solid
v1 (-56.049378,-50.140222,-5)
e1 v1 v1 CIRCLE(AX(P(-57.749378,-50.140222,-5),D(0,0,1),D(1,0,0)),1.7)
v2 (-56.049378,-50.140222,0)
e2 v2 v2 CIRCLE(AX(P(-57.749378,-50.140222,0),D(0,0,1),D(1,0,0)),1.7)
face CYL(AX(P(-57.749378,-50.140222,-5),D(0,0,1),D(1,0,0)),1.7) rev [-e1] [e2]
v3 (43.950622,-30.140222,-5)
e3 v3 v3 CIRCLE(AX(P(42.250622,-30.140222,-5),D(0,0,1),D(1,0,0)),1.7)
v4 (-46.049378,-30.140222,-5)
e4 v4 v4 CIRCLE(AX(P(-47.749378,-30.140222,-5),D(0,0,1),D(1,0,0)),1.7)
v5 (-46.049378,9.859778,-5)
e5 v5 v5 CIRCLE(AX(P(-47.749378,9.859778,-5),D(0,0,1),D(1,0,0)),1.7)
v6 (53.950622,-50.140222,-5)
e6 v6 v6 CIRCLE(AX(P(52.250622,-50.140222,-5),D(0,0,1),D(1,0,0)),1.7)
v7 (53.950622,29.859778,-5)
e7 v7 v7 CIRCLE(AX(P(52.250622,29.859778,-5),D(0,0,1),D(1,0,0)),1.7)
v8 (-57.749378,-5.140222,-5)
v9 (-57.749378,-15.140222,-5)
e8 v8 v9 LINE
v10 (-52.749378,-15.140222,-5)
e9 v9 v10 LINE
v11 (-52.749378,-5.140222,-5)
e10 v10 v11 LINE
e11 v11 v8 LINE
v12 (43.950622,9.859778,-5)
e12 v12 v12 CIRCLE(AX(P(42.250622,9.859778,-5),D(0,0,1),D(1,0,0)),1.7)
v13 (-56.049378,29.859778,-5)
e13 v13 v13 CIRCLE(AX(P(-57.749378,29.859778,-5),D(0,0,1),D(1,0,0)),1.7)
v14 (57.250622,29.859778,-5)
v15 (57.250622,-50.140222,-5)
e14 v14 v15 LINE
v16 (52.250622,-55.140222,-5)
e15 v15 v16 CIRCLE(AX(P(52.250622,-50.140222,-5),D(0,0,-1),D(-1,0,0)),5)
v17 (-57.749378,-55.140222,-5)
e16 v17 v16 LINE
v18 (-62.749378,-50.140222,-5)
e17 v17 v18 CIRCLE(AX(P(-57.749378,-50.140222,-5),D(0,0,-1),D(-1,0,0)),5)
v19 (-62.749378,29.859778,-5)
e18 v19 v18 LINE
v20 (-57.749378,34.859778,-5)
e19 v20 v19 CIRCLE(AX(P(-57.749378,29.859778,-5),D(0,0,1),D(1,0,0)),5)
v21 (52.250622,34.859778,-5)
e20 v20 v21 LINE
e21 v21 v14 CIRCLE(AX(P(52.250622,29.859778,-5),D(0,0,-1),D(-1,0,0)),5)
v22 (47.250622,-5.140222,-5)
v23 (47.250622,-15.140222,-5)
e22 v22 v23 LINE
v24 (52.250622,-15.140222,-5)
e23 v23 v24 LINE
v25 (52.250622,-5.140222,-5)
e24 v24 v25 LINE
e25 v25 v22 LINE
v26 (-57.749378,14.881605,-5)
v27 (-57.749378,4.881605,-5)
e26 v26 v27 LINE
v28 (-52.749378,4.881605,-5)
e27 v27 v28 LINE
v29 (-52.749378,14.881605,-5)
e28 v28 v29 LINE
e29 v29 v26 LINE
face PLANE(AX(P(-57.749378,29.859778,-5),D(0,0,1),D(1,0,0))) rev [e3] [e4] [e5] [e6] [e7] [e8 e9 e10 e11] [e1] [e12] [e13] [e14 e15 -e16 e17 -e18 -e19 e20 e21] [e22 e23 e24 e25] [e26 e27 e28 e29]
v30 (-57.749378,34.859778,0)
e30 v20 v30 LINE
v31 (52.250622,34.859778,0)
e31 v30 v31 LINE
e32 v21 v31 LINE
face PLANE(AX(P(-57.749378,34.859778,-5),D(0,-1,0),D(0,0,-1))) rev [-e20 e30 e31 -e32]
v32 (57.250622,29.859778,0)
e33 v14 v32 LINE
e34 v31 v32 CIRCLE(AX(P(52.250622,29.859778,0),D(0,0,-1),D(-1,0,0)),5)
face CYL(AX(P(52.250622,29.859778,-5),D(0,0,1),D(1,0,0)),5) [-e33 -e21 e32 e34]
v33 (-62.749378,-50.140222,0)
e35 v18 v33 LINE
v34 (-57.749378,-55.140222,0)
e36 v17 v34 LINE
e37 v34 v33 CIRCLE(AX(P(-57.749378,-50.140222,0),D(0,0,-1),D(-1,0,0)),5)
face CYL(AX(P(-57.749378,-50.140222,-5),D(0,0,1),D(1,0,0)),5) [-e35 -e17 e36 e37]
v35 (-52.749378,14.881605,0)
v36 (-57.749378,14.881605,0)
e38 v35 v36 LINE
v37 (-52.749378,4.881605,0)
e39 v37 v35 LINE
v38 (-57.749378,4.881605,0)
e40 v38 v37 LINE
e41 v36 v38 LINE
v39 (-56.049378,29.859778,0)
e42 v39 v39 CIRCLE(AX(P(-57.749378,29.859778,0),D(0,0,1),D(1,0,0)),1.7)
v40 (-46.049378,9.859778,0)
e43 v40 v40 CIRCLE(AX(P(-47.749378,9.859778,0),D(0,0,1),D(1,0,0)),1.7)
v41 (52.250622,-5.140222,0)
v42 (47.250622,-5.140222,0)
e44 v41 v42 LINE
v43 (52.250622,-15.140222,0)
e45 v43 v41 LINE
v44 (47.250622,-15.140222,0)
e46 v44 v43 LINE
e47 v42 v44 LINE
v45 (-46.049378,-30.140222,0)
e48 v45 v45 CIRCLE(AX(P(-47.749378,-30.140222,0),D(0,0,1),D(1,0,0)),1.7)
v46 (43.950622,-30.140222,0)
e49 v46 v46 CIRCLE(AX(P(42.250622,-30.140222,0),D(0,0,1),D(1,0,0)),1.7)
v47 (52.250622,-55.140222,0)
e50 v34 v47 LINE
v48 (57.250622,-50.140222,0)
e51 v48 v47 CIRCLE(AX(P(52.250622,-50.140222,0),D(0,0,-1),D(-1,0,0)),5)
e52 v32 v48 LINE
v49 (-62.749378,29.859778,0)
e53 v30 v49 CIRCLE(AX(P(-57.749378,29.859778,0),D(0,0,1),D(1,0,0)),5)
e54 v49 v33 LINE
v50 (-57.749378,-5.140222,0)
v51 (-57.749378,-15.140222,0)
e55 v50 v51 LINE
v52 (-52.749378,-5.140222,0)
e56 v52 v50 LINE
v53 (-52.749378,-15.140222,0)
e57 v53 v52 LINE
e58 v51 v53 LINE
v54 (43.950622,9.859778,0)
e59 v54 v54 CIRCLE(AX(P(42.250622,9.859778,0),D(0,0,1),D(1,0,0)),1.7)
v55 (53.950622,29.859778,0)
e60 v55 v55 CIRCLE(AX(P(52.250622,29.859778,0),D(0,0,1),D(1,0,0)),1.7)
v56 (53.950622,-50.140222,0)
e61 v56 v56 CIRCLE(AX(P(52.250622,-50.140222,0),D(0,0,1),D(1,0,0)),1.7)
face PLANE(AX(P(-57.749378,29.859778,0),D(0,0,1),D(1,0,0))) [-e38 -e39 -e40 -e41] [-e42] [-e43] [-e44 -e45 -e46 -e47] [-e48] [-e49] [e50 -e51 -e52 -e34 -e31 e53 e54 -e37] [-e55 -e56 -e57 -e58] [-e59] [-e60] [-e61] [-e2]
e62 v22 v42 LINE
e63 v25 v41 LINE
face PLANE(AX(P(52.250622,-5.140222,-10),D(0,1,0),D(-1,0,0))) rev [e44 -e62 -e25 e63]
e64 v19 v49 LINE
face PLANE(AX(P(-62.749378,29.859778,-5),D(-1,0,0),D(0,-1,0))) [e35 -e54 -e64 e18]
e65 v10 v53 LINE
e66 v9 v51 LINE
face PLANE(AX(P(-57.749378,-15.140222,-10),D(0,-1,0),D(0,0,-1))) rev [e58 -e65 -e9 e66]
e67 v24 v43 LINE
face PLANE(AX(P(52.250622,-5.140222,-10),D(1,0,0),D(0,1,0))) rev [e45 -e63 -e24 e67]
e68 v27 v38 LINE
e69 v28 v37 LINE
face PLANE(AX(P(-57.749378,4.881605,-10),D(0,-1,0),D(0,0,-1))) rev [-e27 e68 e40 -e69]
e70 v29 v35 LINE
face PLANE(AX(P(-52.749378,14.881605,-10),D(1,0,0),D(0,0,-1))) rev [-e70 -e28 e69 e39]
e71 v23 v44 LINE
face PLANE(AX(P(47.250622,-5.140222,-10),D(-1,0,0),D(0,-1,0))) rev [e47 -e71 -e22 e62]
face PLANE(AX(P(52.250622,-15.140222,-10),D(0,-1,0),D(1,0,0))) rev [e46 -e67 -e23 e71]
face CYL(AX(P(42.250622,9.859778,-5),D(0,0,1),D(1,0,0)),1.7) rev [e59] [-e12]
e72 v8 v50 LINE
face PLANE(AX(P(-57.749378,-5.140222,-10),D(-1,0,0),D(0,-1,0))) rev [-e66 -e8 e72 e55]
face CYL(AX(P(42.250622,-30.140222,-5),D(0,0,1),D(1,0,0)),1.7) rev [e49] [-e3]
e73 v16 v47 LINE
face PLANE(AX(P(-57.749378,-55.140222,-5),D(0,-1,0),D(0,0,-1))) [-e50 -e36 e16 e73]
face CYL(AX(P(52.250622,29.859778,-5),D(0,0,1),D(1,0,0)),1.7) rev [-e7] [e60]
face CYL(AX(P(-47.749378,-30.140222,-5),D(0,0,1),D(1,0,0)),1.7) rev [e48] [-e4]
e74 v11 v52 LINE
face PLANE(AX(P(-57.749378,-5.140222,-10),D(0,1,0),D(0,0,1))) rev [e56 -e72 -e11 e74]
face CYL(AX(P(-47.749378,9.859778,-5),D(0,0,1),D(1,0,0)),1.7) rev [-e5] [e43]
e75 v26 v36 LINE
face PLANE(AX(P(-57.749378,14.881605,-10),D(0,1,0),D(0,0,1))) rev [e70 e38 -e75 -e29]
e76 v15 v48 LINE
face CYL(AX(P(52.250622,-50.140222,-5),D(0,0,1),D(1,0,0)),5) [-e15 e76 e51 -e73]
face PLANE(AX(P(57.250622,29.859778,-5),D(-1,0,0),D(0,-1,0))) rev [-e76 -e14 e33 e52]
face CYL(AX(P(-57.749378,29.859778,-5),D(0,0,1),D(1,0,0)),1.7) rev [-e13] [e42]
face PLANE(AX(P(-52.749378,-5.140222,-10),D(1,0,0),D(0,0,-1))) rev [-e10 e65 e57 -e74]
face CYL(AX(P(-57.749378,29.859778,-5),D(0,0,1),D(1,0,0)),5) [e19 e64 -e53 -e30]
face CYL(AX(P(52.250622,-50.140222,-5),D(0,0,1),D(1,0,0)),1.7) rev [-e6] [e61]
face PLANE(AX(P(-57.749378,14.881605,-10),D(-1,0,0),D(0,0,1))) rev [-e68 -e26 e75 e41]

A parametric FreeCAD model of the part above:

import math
import FreeCAD as App
import Part
import Sketcher

V = App.Vector
Q = App.Units.Quantity


def add_polygon(sketch, points):
    """Adds a closed chain of lines whose ends are joined by coincident constraints."""
    first, n = sketch.GeometryCount, len(points)
    for a, b in zip(points, points[1:] + points[:1]):
        sketch.addGeometry(Part.LineSegment(App.Vector(*a, 0), App.Vector(*b, 0)), False)
    for i in range(n):
        sketch.addConstraint(Sketcher.Constraint("Coincident", first + i, 2, first + (i + 1) % n, 1))

doc = App.newDocument("Part")
body = doc.addObject("PartDesign::Body", "Body")

sketch1 = body.newObject("Sketcher::SketchObject", "Sketch")
sketch1.AttachmentSupport = (doc.getObject("XY_Plane"), [""])
sketch1.MapMode = "FlatFace"
sketch1.addGeometry([
    Part.LineSegment(V(52, 35, 0), V(-58, 35, 0)),
    Part.ArcOfCircle(Part.Circle(V(-58, 30, 0), V(0, 0, 1), 5), math.radians(90), math.radians(180)),
    Part.LineSegment(V(-63, 30, 0), V(-63, -50, 0)),
    Part.ArcOfCircle(Part.Circle(V(-58, -50, 0), V(0, 0, 1), 5), math.radians(180), math.radians(270)),
    Part.LineSegment(V(-58, -55, 0), V(52, -55, 0)),
    Part.ArcOfCircle(Part.Circle(V(52, -50, 0), V(0, 0, 1), 5), math.radians(-90), math.radians(0)),
    Part.LineSegment(V(57, -50, 0), V(57, 30, 0)),
    Part.ArcOfCircle(Part.Circle(V(52, 30, 0), V(0, 0, 1), 5), math.radians(0), math.radians(90)),
], False)
sketch1.addConstraint([
    Sketcher.Constraint("Tangent", 0, 2, 1, 1),
    Sketcher.Constraint("Tangent", 1, 2, 2, 1),
    Sketcher.Constraint("Tangent", 2, 2, 3, 1),
    Sketcher.Constraint("Tangent", 3, 2, 4, 1),
    Sketcher.Constraint("Tangent", 4, 2, 5, 1),
    Sketcher.Constraint("Tangent", 5, 2, 6, 1),
    Sketcher.Constraint("Tangent", 6, 2, 7, 1),
    Sketcher.Constraint("Tangent", 7, 2, 0, 1),
    Sketcher.Constraint("Horizontal", 0),
    Sketcher.Constraint("Vertical", 2),
    Sketcher.Constraint("Horizontal", 4),
    Sketcher.Constraint("Vertical", 6),
    Sketcher.Constraint("Equal", 1, 3),
    Sketcher.Constraint("Equal", 3, 5),
    Sketcher.Constraint("Equal", 5, 7),
    Sketcher.Constraint("Radius", 1, Q("5 mm")),
    Sketcher.Constraint("DistanceX", 0, 2, 0, 1, Q("110 mm")),
    Sketcher.Constraint("DistanceY", 2, 2, 2, 1, Q("80 mm")),
    Sketcher.Constraint("DistanceY", -1, 1, 1, 3, Q("29.859778 mm")),
    Sketcher.Constraint("DistanceX", 1, 3, -1, 1, Q("57.749378 mm")),
])
pad1 = body.newObject("PartDesign::Pad", "Pad")
pad1.Profile = sketch1
pad1.Length = 5
pad1.Reversed = True

sketch2 = body.newObject("Sketcher::SketchObject", "Sketch001")
sketch2.AttachmentSupport = (doc.getObject("XY_Plane"), [""])
sketch2.MapMode = "FlatFace"
add_polygon(sketch2, [(-78.8, 50.9), (-78.8, -71.1), (73.3, -71.1), (73.3, 50.9)])
sketch2.addGeometry(Part.ArcOfCircle(Part.Circle(V(-57.7, 29.9, 0), V(0, 0, 1), 5), math.radians(90), math.radians(180)), False)
sketch2.addGeometry(Part.LineSegment(V(-57.7, 34.9, 0), V(52.3, 34.9, 0)), False)
sketch2.addGeometry(Part.ArcOfCircle(Part.Circle(V(52.3, 29.9, 0), V(0, 0, 1), 5), math.radians(0), math.radians(90)), False)
sketch2.addGeometry(Part.LineSegment(V(57.3, 29.9, 0), V(57.3, -50.1, 0)), False)
sketch2.addGeometry(Part.ArcOfCircle(Part.Circle(V(52.3, -50.1, 0), V(0, 0, 1), 5), math.radians(-90), math.radians(0)), False)
sketch2.addGeometry(Part.LineSegment(V(52.3, -55.1, 0), V(-57.7, -55.1, 0)), False)
sketch2.addGeometry(Part.ArcOfCircle(Part.Circle(V(-57.7, -50.1, 0), V(0, 0, 1), 5), math.radians(180), math.radians(270)), False)
sketch2.addGeometry(Part.LineSegment(V(-62.7, -50.1, 0), V(-62.7, 29.9, 0)), False)
sketch2.addGeometry(Part.Circle(V(-57.7, 29.9, 0), V(0, 0, 1), 1.7), False)
sketch2.addGeometry(Part.Circle(V(52.3, 29.9, 0), V(0, 0, 1), 1.7), False)
sketch2.addGeometry(Part.Circle(V(-57.7, -50.1, 0), V(0, 0, 1), 1.7), False)
sketch2.addGeometry(Part.Circle(V(52.3, -50.1, 0), V(0, 0, 1), 1.7), False)
sketch2.addGeometry(Part.Circle(V(-47.7, 9.9, 0), V(0, 0, 1), 1.7), False)
sketch2.addGeometry(Part.Circle(V(-47.7, -30.1, 0), V(0, 0, 1), 1.7), False)
sketch2.addGeometry(Part.Circle(V(42.3, 9.9, 0), V(0, 0, 1), 1.7), False)
sketch2.addGeometry(Part.Circle(V(42.3, -30.1, 0), V(0, 0, 1), 1.7), False)
sketch2.addConstraint([
    Sketcher.Constraint("Tangent", 4, 1, 5, 1),
    Sketcher.Constraint("Tangent", 5, 2, 6, 2),
    Sketcher.Constraint("Tangent", 6, 1, 7, 1),
    Sketcher.Constraint("Tangent", 7, 2, 8, 2),
    Sketcher.Constraint("Tangent", 8, 1, 9, 1),
    Sketcher.Constraint("Tangent", 9, 2, 10, 2),
    Sketcher.Constraint("Tangent", 10, 1, 11, 1),
    Sketcher.Constraint("Tangent", 11, 2, 4, 2),
    Sketcher.Constraint("Vertical", 0),
    Sketcher.Constraint("Horizontal", 1),
    Sketcher.Constraint("Vertical", 2),
    Sketcher.Constraint("Horizontal", 3),
    Sketcher.Constraint("Horizontal", 5),
    Sketcher.Constraint("Vertical", 7),
    Sketcher.Constraint("Horizontal", 9),
    Sketcher.Constraint("Vertical", 11),
    Sketcher.Constraint("Coincident", 12, 3, 4, 3),
    Sketcher.Constraint("Coincident", 13, 3, 6, 3),
    Sketcher.Constraint("Coincident", 14, 3, 10, 3),
    Sketcher.Constraint("Coincident", 15, 3, 8, 3),
    Sketcher.Constraint("Equal", 4, 6),
    Sketcher.Constraint("Equal", 6, 8),
    Sketcher.Constraint("Equal", 8, 10),
    Sketcher.Constraint("Equal", 12, 13),
    Sketcher.Constraint("Equal", 13, 14),
    Sketcher.Constraint("Equal", 14, 15),
    Sketcher.Constraint("Equal", 15, 16),
    Sketcher.Constraint("Equal", 16, 17),
    Sketcher.Constraint("Equal", 17, 18),
    Sketcher.Constraint("Equal", 18, 19),
    Sketcher.Constraint("Horizontal", 16, 3, 18, 3),
    Sketcher.Constraint("Horizontal", 17, 3, 19, 3),
    Sketcher.Constraint("Vertical", 16, 3, 17, 3),
    Sketcher.Constraint("Vertical", 18, 3, 19, 3),
    Sketcher.Constraint("Radius", 4, Q("5 mm")),
    Sketcher.Constraint("Diameter", 12, Q("3.4 mm")),
    Sketcher.Constraint("DistanceX", 5, 1, 5, 2, Q("110 mm")),
    Sketcher.Constraint("DistanceY", 7, 2, 7, 1, Q("80 mm")),
    Sketcher.Constraint("DistanceX", 4, 3, 16, 3, Q("10 mm")),
    Sketcher.Constraint("DistanceY", 16, 3, 4, 3, Q("20 mm")),
    Sketcher.Constraint("DistanceY", 10, 3, 17, 3, Q("20 mm")),
    Sketcher.Constraint("DistanceX", 18, 3, 6, 3, Q("10 mm")),
    Sketcher.Constraint("DistanceX", 1, 1, 1, 2, Q("152.016 mm")),
    Sketcher.Constraint("DistanceY", 0, 2, 0, 1, Q("122.016 mm")),
    Sketcher.Constraint("DistanceX", 0, 2, -1, 1, Q("78.757 mm")),
    Sketcher.Constraint("DistanceY", 0, 2, -1, 1, Q("71.148 mm")),
    Sketcher.Constraint("DistanceY", -1, 1, 4, 3, Q("29.859778 mm")),
    Sketcher.Constraint("DistanceX", 4, 3, -1, 1, Q("57.749378 mm")),
])
pocket1 = body.newObject("PartDesign::Pocket", "Pocket")
pocket1.Profile = sketch2
pocket1.Length = 84.683502

sketch3 = body.newObject("Sketcher::SketchObject", "Sketch002")
sketch3.AttachmentSupport = (doc.getObject("XY_Plane"), [""])
sketch3.MapMode = "FlatFace"
add_polygon(sketch3, [(-58, -5), (-58, -15), (-53, -15), (-53, -5)])
add_polygon(sketch3, [(47, -5), (47, -15), (52, -15), (52, -5)])
add_polygon(sketch3, [(-58, 15), (-58, 5), (-53, 5), (-53, 15)])
sketch3.addConstraint([
    Sketcher.Constraint("Vertical", 0),
    Sketcher.Constraint("Horizontal", 1),
    Sketcher.Constraint("Vertical", 2),
    Sketcher.Constraint("Horizontal", 3),
    Sketcher.Constraint("Vertical", 4),
    Sketcher.Constraint("Horizontal", 5),
    Sketcher.Constraint("Vertical", 6),
    Sketcher.Constraint("Horizontal", 7),
    Sketcher.Constraint("Vertical", 8),
    Sketcher.Constraint("Horizontal", 9),
    Sketcher.Constraint("Vertical", 10),
    Sketcher.Constraint("Horizontal", 11),
    Sketcher.Constraint("Horizontal", 1, 2, 4, 2),
    Sketcher.Constraint("Horizontal", 3, 2, 6, 2),
    Sketcher.Constraint("Vertical", 3, 2, 8, 2),
    Sketcher.Constraint("Vertical", 2, 2, 9, 2),
    Sketcher.Constraint("Equal", 3, 5),
    Sketcher.Constraint("Equal", 6, 8),
    Sketcher.Constraint("DistanceX", 1, 1, 1, 2, Q("5 mm")),
    Sketcher.Constraint("DistanceY", 0, 2, 0, 1, Q("10 mm")),
    Sketcher.Constraint("DistanceX", 1, 2, 4, 2, Q("100 mm")),
    Sketcher.Constraint("DistanceY", 0, 2, -1, 1, Q("15.140222 mm")),
    Sketcher.Constraint("DistanceX", 0, 2, -1, 1, Q("57.749378 mm")),
    Sketcher.Constraint("DistanceY", -1, 1, 8, 2, Q("4.881605 mm")),
])
pocket2 = body.newObject("PartDesign::Pocket", "Pocket001")
pocket2.Profile = sketch3
pocket2.Length = 10

doc.recompute()
